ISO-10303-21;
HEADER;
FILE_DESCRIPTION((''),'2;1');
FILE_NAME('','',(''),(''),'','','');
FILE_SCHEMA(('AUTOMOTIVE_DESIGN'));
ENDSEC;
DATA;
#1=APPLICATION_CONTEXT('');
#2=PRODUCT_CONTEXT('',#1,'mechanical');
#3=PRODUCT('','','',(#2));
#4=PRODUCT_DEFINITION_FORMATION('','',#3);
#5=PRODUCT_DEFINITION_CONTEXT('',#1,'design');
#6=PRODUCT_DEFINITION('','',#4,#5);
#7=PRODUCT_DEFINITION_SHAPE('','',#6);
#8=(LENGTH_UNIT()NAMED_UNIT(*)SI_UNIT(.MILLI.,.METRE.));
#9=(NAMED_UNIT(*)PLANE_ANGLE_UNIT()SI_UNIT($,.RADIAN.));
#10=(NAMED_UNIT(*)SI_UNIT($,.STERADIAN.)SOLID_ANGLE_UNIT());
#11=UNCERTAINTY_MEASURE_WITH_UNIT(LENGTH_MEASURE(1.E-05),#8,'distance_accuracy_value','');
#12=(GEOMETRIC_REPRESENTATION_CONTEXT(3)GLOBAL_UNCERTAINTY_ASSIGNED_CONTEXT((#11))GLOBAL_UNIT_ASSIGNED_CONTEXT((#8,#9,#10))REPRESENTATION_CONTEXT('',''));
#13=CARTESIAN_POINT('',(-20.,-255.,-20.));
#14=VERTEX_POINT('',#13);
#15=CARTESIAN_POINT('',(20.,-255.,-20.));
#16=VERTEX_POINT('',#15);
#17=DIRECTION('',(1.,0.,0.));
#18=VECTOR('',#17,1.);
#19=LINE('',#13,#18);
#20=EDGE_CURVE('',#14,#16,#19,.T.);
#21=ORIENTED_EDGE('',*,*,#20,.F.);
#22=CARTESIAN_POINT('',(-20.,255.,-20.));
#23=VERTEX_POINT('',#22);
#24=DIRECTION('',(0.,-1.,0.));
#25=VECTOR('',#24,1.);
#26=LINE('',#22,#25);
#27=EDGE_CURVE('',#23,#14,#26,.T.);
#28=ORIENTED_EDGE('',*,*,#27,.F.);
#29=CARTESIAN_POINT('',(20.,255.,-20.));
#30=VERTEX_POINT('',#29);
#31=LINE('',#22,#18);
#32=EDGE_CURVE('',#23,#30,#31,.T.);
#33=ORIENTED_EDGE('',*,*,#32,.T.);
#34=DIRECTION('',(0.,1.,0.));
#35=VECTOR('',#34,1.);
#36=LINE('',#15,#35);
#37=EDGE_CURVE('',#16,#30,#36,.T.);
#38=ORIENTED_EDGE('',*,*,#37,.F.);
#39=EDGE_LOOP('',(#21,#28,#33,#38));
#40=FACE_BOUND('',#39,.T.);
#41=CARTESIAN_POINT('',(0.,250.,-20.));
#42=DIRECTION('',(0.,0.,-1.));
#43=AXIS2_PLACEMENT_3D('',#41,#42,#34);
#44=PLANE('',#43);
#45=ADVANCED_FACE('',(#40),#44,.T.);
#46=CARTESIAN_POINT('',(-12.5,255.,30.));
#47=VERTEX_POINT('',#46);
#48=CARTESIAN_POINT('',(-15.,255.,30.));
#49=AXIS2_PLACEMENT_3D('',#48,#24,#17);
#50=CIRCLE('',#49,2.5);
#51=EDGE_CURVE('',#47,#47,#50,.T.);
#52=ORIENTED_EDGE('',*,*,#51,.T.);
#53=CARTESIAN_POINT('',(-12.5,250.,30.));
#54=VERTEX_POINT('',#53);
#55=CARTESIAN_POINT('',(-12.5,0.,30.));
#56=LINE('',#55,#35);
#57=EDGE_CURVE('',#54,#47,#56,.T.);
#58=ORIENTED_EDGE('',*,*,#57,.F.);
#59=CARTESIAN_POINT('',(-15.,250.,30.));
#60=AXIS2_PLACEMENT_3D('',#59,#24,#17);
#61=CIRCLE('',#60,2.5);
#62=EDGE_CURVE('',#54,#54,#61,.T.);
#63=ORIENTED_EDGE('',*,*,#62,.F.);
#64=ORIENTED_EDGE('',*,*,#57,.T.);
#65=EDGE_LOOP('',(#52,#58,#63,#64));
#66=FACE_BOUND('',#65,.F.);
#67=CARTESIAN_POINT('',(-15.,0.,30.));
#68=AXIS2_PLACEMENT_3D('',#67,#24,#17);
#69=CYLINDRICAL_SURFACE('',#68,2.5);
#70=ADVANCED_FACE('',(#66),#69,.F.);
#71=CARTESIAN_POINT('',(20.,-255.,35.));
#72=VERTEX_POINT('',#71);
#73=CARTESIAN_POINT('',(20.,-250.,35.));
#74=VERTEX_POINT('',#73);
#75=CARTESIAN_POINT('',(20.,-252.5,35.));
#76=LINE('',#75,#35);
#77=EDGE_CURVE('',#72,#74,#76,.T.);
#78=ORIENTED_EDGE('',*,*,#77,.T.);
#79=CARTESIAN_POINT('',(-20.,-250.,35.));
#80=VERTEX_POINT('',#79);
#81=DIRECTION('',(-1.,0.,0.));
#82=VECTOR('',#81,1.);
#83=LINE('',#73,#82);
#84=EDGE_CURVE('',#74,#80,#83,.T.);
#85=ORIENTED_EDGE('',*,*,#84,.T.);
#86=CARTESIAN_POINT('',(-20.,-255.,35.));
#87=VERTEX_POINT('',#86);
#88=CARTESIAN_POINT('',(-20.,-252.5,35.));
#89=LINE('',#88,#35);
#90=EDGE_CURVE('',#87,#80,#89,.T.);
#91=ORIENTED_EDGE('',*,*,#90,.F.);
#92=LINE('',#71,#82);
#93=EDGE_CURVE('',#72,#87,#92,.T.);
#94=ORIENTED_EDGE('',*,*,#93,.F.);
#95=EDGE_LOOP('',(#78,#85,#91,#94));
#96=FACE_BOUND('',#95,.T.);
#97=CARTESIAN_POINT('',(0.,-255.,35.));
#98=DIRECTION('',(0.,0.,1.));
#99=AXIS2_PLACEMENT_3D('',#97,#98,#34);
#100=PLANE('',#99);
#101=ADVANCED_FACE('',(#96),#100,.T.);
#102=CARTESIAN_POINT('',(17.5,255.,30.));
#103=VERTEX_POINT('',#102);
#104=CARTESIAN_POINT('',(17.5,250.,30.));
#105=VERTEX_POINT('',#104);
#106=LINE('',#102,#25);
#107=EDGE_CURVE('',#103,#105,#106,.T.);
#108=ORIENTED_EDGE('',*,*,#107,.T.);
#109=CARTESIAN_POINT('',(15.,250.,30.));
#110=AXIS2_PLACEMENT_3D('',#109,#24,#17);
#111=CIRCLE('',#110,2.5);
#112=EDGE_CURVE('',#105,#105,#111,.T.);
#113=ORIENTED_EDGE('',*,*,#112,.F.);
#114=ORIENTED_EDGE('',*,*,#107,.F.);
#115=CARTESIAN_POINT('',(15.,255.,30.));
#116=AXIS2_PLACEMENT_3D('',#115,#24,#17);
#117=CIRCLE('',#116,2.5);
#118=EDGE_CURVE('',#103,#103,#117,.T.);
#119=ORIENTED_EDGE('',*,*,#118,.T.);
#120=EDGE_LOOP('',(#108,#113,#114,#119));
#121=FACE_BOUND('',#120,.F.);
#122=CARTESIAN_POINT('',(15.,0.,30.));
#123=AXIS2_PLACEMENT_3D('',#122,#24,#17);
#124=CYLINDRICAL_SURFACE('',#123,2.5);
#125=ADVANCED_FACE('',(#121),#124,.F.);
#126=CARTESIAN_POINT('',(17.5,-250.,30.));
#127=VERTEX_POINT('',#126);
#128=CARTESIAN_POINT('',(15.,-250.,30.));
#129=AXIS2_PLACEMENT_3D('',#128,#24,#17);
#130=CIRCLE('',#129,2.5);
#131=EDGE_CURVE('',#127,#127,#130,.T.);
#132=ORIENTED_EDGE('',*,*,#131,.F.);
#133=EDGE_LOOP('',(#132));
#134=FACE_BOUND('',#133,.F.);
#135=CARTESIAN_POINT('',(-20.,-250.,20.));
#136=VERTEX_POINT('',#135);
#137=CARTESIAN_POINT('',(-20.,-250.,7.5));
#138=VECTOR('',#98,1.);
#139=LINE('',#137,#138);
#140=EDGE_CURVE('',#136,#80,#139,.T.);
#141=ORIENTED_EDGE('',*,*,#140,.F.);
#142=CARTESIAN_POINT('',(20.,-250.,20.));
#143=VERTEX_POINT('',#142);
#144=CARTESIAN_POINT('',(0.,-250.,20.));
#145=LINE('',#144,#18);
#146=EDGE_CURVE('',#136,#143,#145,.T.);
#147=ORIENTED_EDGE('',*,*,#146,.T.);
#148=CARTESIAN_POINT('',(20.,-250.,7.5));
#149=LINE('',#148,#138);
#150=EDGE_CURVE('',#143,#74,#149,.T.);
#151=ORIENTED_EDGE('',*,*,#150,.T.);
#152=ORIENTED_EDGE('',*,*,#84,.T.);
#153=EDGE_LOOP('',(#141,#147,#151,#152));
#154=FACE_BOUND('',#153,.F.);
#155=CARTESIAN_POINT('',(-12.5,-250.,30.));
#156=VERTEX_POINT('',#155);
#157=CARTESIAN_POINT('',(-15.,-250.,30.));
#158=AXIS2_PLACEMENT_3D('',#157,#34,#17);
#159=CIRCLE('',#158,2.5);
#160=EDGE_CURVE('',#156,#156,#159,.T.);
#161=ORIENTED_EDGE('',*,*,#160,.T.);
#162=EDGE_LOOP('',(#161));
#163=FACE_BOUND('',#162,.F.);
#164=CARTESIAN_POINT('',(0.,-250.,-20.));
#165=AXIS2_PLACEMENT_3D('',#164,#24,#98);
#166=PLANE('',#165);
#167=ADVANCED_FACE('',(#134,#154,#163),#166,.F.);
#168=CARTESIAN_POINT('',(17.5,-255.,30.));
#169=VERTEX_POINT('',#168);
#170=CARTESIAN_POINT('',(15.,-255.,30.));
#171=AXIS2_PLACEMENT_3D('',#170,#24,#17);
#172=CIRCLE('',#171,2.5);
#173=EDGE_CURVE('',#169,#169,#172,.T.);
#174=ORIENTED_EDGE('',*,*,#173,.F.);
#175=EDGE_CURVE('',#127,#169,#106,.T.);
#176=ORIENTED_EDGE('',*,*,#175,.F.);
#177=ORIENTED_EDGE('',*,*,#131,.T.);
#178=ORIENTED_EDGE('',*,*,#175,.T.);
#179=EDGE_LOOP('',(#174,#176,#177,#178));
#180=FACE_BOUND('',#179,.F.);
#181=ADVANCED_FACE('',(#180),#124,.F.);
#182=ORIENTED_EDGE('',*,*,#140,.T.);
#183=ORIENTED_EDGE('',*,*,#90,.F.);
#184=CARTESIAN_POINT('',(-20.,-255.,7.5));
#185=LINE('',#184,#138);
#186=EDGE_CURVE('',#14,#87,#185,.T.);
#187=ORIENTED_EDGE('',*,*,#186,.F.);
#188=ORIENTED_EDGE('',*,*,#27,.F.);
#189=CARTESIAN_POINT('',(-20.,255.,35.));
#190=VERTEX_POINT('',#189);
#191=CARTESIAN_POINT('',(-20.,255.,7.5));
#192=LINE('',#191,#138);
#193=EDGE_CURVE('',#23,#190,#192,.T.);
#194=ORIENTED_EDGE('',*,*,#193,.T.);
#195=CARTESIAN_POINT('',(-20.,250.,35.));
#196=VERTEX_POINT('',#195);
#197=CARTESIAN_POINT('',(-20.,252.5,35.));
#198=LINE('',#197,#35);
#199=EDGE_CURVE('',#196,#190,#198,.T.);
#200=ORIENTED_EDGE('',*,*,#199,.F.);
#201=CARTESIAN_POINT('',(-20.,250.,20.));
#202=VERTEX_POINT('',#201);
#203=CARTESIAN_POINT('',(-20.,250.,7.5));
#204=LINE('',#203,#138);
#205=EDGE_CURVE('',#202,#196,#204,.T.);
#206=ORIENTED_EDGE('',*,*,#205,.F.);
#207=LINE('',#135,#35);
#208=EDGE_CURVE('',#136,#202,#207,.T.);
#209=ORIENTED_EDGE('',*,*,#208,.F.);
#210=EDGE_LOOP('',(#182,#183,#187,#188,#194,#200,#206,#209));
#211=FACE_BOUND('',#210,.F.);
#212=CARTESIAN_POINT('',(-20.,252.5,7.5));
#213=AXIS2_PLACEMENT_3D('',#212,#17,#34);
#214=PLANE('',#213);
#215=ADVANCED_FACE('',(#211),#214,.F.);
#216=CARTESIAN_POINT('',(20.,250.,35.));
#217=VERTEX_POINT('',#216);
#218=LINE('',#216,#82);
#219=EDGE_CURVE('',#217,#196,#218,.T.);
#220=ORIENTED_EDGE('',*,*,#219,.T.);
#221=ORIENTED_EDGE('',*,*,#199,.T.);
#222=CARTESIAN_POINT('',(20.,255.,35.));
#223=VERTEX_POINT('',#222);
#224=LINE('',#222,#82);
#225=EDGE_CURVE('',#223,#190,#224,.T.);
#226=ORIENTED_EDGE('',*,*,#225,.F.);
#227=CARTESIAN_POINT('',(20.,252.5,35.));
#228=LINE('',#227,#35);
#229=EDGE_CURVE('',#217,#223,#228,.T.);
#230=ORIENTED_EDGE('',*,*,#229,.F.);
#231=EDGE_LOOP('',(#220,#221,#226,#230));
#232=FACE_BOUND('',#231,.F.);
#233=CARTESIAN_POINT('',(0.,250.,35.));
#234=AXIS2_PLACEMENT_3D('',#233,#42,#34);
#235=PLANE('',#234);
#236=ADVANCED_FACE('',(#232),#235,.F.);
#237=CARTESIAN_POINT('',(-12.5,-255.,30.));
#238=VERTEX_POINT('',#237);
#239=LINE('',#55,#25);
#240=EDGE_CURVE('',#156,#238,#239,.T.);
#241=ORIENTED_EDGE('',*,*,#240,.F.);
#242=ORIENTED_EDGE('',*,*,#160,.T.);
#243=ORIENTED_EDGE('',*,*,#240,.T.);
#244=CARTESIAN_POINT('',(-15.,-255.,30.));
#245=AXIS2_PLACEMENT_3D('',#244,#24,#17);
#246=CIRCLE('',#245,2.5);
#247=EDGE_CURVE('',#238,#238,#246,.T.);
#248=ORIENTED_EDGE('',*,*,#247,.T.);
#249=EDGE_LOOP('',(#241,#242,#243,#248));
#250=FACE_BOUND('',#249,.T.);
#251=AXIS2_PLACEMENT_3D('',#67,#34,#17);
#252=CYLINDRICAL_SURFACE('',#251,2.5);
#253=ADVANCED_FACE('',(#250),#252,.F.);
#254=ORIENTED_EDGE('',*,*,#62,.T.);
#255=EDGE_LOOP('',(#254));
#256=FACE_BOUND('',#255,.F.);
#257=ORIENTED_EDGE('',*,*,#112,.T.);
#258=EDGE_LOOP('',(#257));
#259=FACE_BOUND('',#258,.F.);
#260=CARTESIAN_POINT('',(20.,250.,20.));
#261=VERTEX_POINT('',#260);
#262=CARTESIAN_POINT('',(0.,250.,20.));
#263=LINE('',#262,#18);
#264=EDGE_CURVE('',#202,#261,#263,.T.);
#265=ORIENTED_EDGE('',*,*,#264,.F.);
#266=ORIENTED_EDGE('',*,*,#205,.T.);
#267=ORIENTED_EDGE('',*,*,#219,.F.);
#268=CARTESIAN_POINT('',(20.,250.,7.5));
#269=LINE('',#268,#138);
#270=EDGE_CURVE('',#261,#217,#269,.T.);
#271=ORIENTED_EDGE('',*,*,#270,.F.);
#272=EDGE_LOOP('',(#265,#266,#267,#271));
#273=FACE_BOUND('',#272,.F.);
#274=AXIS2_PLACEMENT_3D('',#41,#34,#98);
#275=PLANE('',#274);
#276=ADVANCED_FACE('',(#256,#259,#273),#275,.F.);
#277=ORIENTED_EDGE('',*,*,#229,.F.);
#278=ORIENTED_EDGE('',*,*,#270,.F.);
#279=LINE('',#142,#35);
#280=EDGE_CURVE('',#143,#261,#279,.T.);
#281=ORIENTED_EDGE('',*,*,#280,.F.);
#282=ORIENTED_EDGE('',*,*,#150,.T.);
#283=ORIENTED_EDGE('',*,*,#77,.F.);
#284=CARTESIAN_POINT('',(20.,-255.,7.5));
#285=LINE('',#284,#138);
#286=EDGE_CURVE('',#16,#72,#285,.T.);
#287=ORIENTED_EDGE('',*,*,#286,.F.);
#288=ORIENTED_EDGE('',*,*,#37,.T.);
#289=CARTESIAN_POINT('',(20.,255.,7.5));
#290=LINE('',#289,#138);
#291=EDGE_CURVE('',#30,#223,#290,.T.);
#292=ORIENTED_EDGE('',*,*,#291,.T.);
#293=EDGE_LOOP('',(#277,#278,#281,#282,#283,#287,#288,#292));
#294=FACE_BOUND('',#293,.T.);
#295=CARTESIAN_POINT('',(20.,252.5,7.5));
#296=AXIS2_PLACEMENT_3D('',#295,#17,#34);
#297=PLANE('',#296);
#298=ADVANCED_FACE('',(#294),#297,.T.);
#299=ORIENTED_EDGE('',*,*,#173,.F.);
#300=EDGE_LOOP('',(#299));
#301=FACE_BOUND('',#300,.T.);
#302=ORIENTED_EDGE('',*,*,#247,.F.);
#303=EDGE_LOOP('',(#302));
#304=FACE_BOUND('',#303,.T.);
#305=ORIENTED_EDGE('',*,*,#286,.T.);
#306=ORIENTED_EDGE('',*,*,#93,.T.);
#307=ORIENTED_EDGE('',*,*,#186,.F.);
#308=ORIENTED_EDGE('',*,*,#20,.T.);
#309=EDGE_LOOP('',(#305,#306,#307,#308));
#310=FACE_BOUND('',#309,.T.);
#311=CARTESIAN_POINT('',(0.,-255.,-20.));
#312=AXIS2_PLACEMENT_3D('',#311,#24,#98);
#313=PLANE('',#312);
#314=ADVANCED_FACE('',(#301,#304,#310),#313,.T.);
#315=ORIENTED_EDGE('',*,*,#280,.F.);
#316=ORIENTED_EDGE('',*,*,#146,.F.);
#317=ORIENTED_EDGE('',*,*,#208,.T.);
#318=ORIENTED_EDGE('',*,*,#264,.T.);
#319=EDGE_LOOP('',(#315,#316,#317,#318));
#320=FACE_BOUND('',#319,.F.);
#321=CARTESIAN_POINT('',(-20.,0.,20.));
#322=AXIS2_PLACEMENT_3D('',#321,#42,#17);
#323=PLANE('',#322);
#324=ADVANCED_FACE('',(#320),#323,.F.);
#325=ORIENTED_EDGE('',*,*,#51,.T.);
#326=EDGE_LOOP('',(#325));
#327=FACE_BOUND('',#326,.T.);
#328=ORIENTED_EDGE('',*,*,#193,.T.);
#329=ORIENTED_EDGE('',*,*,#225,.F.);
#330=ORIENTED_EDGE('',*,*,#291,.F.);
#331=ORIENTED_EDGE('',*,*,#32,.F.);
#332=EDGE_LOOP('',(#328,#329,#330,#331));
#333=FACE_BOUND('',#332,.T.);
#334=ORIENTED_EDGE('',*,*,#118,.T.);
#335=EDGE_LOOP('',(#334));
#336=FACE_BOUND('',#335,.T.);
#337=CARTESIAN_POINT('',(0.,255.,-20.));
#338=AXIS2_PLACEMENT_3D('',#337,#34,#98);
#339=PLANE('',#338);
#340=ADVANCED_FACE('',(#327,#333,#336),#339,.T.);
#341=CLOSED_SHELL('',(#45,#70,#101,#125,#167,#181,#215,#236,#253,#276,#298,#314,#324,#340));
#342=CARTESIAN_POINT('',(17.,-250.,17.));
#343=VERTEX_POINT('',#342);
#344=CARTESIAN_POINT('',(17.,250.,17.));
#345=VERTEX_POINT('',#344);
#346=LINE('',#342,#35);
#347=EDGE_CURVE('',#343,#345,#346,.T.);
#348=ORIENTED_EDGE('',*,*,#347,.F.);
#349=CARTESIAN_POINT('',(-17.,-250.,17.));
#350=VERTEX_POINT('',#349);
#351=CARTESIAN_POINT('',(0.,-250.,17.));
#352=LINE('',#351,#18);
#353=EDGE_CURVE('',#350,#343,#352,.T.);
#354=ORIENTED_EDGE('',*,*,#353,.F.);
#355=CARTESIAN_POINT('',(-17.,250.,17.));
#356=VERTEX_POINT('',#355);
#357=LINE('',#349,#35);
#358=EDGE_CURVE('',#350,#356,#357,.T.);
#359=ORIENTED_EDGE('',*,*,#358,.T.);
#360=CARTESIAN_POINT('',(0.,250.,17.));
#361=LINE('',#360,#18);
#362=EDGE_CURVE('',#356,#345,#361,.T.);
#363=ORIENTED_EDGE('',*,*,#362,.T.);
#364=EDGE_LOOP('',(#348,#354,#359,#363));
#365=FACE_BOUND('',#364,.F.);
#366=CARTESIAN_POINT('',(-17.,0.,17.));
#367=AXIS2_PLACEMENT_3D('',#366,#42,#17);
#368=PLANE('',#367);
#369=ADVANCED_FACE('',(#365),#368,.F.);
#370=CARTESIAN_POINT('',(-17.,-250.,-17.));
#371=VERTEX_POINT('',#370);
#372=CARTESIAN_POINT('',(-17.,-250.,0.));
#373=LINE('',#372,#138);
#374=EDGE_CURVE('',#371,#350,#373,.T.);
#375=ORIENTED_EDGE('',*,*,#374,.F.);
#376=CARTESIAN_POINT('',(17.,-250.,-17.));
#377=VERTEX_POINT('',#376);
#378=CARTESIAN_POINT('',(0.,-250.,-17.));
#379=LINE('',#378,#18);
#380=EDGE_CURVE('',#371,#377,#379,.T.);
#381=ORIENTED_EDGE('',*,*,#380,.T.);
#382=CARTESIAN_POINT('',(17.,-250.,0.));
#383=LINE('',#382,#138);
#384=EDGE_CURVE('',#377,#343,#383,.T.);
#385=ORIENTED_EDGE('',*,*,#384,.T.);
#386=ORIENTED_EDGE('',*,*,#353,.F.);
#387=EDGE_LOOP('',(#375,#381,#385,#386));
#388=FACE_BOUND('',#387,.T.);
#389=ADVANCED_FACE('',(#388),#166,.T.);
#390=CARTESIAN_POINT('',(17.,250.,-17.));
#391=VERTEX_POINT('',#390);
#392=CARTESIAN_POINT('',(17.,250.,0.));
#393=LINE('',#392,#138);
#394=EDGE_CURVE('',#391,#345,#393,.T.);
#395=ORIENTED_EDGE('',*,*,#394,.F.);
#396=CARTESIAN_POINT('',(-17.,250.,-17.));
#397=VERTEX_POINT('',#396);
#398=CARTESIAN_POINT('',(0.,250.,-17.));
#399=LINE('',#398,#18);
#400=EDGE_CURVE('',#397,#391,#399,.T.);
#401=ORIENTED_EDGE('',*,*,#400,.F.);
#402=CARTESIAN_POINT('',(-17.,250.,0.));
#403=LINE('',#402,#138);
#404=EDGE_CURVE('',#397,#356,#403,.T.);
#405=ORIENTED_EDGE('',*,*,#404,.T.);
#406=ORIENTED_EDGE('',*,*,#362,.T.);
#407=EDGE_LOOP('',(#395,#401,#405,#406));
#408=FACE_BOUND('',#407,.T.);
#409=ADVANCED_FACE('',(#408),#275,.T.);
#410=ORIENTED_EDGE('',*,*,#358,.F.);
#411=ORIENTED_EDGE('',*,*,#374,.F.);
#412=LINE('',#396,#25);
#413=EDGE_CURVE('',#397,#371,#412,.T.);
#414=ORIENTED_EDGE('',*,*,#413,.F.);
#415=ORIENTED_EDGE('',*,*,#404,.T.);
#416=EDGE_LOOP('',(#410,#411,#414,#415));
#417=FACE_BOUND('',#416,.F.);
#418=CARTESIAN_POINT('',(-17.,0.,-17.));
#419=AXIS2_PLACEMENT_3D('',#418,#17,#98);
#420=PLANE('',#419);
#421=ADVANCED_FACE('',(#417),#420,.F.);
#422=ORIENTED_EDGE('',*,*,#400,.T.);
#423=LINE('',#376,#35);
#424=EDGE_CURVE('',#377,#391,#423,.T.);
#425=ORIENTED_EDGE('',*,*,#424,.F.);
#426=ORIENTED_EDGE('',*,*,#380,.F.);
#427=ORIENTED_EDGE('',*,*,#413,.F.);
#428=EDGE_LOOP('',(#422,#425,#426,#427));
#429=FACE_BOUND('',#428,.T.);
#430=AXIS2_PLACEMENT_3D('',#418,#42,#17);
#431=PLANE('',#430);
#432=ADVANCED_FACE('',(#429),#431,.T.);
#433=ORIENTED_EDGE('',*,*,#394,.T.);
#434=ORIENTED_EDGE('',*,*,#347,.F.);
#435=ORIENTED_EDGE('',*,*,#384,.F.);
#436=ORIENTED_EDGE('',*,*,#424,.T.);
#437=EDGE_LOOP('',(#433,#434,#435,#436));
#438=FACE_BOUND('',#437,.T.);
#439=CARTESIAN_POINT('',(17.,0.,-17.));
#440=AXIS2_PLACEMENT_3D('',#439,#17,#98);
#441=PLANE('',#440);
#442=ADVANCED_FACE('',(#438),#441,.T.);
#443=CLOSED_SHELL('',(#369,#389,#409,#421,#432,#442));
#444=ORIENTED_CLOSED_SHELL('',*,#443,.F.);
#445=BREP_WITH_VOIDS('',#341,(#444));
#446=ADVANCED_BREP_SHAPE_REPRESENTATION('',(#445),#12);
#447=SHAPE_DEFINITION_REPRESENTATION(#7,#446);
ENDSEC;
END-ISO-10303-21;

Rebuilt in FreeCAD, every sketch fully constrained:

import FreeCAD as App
import Part
import Sketcher
Q = App.Units.Quantity


def add_polygon(sketch, points):
    """Adds a closed chain of lines whose ends are joined by coincident constraints."""
    first, n = sketch.GeometryCount, len(points)
    for a, b in zip(points, points[1:] + points[:1]):
        sketch.addGeometry(Part.LineSegment(App.Vector(*a, 0), App.Vector(*b, 0)), False)
    for i in range(n):
        sketch.addConstraint(Sketcher.Constraint("Coincident", first + i, 2, first + (i + 1) % n, 1))

doc = App.newDocument("Part")
body = doc.addObject("PartDesign::Body", "Body")

sketch1 = doc.addObject("Sketcher::SketchObject", "Sketch")
body.addObject(sketch1)
sketch1.AttachmentSupport = (doc.XZ_Plane, [""])
sketch1.MapMode = "FlatFace"
add_polygon(sketch1, [(-20, 20), (-20, -20), (20, -20), (20, 20)])
add_polygon(sketch1, [(17, -17), (-17, -17), (-17, 17), (17, 17)])
sketch1.addConstraint(Sketcher.Constraint("Vertical", 0))
sketch1.addConstraint(Sketcher.Constraint("Horizontal", 1))
sketch1.addConstraint(Sketcher.Constraint("Vertical", 2))
sketch1.addConstraint(Sketcher.Constraint("Horizontal", 3))
sketch1.addConstraint(Sketcher.Constraint("Horizontal", 4))
sketch1.addConstraint(Sketcher.Constraint("Vertical", 5))
sketch1.addConstraint(Sketcher.Constraint("Horizontal", 6))
sketch1.addConstraint(Sketcher.Constraint("Vertical", 7))
sketch1.addConstraint(Sketcher.Constraint("Symmetric", 0, 2, 2, 2, -1, 1))
sketch1.addConstraint(Sketcher.Constraint("Symmetric", 4, 2, 6, 2, -1, 1))
sketch1.addConstraint(Sketcher.Constraint("Equal", 3, 0))
sketch1.addConstraint(Sketcher.Constraint("Equal", 6, 5))
sketch1.addConstraint(Sketcher.Constraint("DistanceX", 1, 1, 1, 2, Q("40 mm")))
sketch1.addConstraint(Sketcher.Constraint("DistanceX", 4, 2, 4, 1, Q("34 mm")))
pad1 = doc.addObject("PartDesign::Pad", "Pad")
body.addObject(pad1)
pad1.Profile = sketch1
pad1.Length = 500
pad1.Midplane = True

sketch2 = doc.addObject("Sketcher::SketchObject", "Sketch001")
body.addObject(sketch2)
sketch2.AttachmentSupport = (doc.YZ_Plane, [""])
sketch2.MapMode = "FlatFace"
add_polygon(sketch2, [(-255, 35), (-255, -20), (-250, -20), (-250, 35)])
add_polygon(sketch2, [(250, 35), (250, -20), (255, -20), (255, 35)])
sketch2.addConstraint(Sketcher.Constraint("Vertical", 0))
sketch2.addConstraint(Sketcher.Constraint("Horizontal", 1))
sketch2.addConstraint(Sketcher.Constraint("Vertical", 2))
sketch2.addConstraint(Sketcher.Constraint("Horizontal", 3))
sketch2.addConstraint(Sketcher.Constraint("Vertical", 4))
sketch2.addConstraint(Sketcher.Constraint("Horizontal", 5))
sketch2.addConstraint(Sketcher.Constraint("Vertical", 6))
sketch2.addConstraint(Sketcher.Constraint("Horizontal", 7))
sketch2.addConstraint(Sketcher.Constraint("Symmetric", 1, 2, 4, 2, -2))
sketch2.addConstraint(Sketcher.Constraint("Symmetric", 3, 2, 6, 2, -2))
sketch2.addConstraint(Sketcher.Constraint("DistanceX", 1, 1, 1, 2, Q("5 mm")))
sketch2.addConstraint(Sketcher.Constraint("DistanceY", 0, 2, 0, 1, Q("55 mm")))
sketch2.addConstraint(Sketcher.Constraint("DistanceX", 0, 2, -1, 1, Q("255 mm")))
sketch2.addConstraint(Sketcher.Constraint("DistanceY", 0, 2, -1, 1, Q("20 mm")))
pad2 = doc.addObject("PartDesign::Pad", "Pad001")
body.addObject(pad2)
pad2.Profile = sketch2
pad2.Length = 40
pad2.Midplane = True

sketch3 = doc.addObject("Sketcher::SketchObject", "Sketch002")
body.addObject(sketch3)
sketch3.AttachmentSupport = (doc.XZ_Plane, [""])
sketch3.MapMode = "FlatFace"
sketch3.addGeometry(Part.Circle(App.Vector(-15, 30, 0), App.Vector(0, 0, 1), 2.5), False)
sketch3.addGeometry(Part.Circle(App.Vector(15, 30, 0), App.Vector(0, 0, 1), 2.5), False)
sketch3.addConstraint(Sketcher.Constraint("Equal", 0, 1))
sketch3.addConstraint(Sketcher.Constraint("Symmetric", 0, 3, 1, 3, -2))
sketch3.addConstraint(Sketcher.Constraint("Diameter", 0, Q("5 mm")))
sketch3.addConstraint(Sketcher.Constraint("DistanceX", 0, 3, -1, 1, Q("15 mm")))
sketch3.addConstraint(Sketcher.Constraint("DistanceY", -1, 1, 0, 3, Q("30 mm")))
pocket1 = doc.addObject("PartDesign::Pocket", "Pocket")
body.addObject(pocket1)
pocket1.Profile = sketch3
pocket1.Length = 510
pocket1.Midplane = True

doc.recompute()
